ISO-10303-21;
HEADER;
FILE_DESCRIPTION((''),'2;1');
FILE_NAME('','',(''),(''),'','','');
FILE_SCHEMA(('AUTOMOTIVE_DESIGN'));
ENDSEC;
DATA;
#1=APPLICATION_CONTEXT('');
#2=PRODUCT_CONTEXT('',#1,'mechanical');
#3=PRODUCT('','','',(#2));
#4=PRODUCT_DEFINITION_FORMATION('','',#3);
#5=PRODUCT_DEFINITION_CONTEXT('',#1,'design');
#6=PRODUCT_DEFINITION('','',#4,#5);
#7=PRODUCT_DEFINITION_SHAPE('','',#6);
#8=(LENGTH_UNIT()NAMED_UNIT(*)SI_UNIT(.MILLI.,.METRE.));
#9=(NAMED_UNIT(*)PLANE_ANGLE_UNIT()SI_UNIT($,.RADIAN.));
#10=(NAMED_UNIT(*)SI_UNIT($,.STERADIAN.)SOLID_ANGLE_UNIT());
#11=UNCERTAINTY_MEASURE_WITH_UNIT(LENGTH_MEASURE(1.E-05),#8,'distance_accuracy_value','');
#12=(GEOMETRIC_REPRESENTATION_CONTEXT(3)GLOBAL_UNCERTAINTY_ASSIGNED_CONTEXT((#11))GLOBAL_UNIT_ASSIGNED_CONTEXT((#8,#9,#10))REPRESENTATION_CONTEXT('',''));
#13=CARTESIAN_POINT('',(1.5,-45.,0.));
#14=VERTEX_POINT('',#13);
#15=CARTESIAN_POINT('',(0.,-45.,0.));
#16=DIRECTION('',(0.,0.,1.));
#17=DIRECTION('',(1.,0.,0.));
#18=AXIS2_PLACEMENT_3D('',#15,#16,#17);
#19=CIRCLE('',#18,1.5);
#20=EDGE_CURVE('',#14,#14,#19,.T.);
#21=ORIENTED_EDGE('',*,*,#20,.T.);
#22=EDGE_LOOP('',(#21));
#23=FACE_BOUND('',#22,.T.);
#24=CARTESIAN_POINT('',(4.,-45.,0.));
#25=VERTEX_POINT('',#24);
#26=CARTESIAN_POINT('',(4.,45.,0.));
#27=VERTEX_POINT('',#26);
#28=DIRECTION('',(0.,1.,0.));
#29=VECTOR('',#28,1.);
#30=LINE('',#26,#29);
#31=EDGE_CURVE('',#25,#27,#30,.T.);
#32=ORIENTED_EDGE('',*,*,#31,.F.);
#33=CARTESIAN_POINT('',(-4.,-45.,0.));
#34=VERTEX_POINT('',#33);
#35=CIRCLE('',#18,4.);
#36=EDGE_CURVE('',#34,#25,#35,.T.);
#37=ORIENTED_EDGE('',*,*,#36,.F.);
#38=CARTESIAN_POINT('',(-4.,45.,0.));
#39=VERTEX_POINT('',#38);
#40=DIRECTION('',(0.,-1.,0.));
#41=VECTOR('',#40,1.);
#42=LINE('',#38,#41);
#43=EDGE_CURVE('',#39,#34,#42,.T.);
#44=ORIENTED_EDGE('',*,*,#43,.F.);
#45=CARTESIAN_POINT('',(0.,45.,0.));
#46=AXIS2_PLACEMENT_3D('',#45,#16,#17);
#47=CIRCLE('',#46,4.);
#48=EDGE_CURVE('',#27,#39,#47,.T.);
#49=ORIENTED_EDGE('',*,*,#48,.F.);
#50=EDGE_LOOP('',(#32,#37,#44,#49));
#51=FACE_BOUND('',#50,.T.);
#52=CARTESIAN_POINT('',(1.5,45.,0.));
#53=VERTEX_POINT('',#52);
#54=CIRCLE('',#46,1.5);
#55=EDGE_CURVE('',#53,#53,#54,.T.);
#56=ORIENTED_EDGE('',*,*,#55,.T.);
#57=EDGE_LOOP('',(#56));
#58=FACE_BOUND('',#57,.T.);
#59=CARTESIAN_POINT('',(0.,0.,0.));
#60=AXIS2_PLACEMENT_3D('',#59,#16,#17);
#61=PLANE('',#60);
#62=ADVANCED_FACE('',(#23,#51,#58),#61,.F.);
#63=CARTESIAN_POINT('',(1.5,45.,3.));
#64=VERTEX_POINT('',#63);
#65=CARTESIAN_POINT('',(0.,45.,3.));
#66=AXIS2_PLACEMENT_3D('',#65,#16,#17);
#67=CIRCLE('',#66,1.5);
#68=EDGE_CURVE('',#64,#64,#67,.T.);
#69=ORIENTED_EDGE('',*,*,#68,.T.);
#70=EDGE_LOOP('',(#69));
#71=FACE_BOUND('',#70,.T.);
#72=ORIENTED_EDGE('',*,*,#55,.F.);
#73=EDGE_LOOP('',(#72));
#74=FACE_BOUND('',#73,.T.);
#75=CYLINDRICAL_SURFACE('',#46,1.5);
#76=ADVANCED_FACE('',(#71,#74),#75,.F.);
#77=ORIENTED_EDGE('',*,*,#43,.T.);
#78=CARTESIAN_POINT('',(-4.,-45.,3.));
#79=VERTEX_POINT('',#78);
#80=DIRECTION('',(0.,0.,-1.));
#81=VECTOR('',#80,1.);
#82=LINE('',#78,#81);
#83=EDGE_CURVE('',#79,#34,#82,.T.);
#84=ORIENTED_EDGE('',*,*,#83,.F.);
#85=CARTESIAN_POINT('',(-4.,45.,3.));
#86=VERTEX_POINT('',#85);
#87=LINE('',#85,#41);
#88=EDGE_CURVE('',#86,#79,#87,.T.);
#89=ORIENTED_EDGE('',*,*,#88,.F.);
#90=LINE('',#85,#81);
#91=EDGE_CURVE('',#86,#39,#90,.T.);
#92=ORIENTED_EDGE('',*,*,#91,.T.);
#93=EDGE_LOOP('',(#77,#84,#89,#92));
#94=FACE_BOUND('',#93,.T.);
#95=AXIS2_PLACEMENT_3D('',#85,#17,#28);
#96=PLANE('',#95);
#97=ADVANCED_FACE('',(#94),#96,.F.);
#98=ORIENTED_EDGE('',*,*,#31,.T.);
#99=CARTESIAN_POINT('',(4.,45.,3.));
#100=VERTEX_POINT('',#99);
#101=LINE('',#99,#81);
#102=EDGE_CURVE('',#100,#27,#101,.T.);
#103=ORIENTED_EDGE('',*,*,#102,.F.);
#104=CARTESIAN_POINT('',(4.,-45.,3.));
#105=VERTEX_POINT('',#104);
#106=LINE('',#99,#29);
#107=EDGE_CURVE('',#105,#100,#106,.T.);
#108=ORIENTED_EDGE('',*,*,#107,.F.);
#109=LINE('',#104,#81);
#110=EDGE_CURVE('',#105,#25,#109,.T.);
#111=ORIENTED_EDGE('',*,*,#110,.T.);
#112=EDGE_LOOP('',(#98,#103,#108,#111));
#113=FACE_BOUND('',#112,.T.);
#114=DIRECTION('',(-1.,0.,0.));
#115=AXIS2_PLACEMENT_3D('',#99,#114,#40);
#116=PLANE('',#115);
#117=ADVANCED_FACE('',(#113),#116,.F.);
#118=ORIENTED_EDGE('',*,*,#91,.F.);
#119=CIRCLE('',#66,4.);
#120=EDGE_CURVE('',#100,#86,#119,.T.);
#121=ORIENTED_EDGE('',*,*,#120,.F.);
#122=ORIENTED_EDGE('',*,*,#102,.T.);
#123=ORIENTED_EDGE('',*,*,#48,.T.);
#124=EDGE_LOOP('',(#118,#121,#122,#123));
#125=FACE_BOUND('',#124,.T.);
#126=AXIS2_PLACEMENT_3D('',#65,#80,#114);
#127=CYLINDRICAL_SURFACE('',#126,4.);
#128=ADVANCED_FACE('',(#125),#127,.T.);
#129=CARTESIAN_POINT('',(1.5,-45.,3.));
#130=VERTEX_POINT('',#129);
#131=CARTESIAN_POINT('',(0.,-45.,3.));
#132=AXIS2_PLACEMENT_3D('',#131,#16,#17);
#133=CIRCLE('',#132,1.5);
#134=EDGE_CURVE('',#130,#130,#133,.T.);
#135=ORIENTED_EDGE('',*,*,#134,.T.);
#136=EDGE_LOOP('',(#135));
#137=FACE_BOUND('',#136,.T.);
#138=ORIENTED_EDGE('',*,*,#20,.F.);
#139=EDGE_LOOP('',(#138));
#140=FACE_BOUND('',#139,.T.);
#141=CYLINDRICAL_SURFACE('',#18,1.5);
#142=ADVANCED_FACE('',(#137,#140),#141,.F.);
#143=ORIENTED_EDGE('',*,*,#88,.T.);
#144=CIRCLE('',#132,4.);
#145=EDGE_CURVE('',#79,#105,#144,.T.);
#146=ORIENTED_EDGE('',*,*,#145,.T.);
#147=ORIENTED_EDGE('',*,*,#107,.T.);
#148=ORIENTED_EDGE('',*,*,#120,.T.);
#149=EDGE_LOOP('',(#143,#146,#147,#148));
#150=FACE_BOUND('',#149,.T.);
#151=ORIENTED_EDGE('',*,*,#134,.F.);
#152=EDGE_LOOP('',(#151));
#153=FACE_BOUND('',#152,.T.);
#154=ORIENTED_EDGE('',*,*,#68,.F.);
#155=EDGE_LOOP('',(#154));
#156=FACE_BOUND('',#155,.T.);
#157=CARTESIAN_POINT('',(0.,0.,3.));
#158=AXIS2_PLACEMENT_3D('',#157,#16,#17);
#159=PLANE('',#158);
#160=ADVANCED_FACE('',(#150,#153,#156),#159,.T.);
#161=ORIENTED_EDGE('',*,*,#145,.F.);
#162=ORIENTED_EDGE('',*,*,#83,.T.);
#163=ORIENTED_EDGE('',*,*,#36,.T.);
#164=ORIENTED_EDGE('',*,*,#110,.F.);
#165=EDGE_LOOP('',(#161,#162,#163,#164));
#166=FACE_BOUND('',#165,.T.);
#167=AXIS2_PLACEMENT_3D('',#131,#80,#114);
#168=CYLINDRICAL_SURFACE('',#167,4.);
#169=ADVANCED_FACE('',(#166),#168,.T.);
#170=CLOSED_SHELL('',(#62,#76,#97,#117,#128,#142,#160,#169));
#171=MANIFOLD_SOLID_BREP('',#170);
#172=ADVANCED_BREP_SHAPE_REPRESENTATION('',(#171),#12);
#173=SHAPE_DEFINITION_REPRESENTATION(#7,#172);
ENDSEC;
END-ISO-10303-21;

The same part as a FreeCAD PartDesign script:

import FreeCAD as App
import Part
import Sketcher
from FreeCAD import Vector

doc = App.newDocument("Part")
params = doc.addObject("Spreadsheet::Sheet", "Params")
for row, (alias, value) in enumerate([
    ("sketch1_width", "8 mm"),
    ("sketch1_height", "90 mm"),
    ("pad1_length", "3 mm"),
    ("sketch2_diameter", "8 mm"),
    ("pad2_length", "3 mm"),
    ("sketch3_diameter", "3 mm"),
    ("pocket1_length", "3 mm"),
], start=1):
    params.set(f"A{row}", alias)
    params.set(f"B{row}", "=" + value)
    params.setAlias(f"B{row}", alias)

body = doc.addObject("PartDesign::Body", "Body")

# Sketch on XY plane
sketch1 = body.newObject("Sketcher::SketchObject", "Sketch")
sketch1.AttachmentSupport = (doc.getObject("XY_Plane"), [""])
sketch1.MapMode = "FlatFace"
sketch1.addGeometry([
    Part.LineSegment(Vector(-4, 45, 0), Vector(-4, -45, 0)),
    Part.LineSegment(Vector(-4, -45, 0), Vector(4, -45, 0)),
    Part.LineSegment(Vector(4, -45, 0), Vector(4, 45, 0)),
    Part.LineSegment(Vector(4, 45, 0), Vector(-4, 45, 0)),
], False)
sketch1.addConstraint([
    Sketcher.Constraint("Coincident", 0, 2, 1, 1),
    Sketcher.Constraint("Coincident", 1, 2, 2, 1),
    Sketcher.Constraint("Coincident", 2, 2, 3, 1),
    Sketcher.Constraint("Coincident", 3, 2, 0, 1),
    Sketcher.Constraint("Vertical", 0),
    Sketcher.Constraint("Horizontal", 1),
    Sketcher.Constraint("Vertical", 2),
    Sketcher.Constraint("Horizontal", 3),
    Sketcher.Constraint("Symmetric", 0, 2, 2, 2, -1, 1),
    Sketcher.Constraint("DistanceX", 1, 1, 1, 2, 8.0),
    Sketcher.Constraint("DistanceY", 0, 2, 0, 1, 90.0),
])
sketch1.setExpression("Constraints[9]", "Params.sketch1_width")
sketch1.setExpression("Constraints[10]", "Params.sketch1_height")
pad1 = body.newObject("PartDesign::Pad", "Pad")
pad1.Profile = sketch1
pad1.setExpression("Length", "Params.pad1_length")

# Sketch on XY plane
sketch2 = body.newObject("Sketcher::SketchObject", "Sketch001")
sketch2.AttachmentSupport = (doc.getObject("XY_Plane"), [""])
sketch2.MapMode = "FlatFace"
sketch2.addGeometry([
    Part.Circle(Vector(0, 45, 0), Vector(0, 0, 1), 4),
    Part.Circle(Vector(0, -45, 0), Vector(0, 0, 1), 4),
], False)
sketch2.addConstraint([
    Sketcher.Constraint("Equal", 0, 1),
    Sketcher.Constraint("Symmetric", 0, 3, 1, 3, -1, 1),
    Sketcher.Constraint("PointOnObject", 0, 3, -2),
    Sketcher.Constraint("Diameter", 0, 8.0),
    Sketcher.Constraint("DistanceY", -1, 1, 0, 3, 45.0),
])
sketch2.setExpression("Constraints[3]", "Params.sketch2_diameter")
pad2 = body.newObject("PartDesign::Pad", "Pad001")
pad2.Profile = sketch2
pad2.setExpression("Length", "Params.pad2_length")

# Sketch on XY plane
sketch3 = body.newObject("Sketcher::SketchObject", "Sketch002")
sketch3.AttachmentSupport = (doc.getObject("XY_Plane"), [""])
sketch3.MapMode = "FlatFace"
sketch3.AttachmentOffset = App.Placement(Vector(0, 0, 3), App.Rotation())
sketch3.addGeometry([
    Part.Circle(Vector(0, 45, 0), Vector(0, 0, 1), 1.5),
    Part.Circle(Vector(0, -45, 0), Vector(0, 0, 1), 1.5),
], False)
sketch3.addConstraint([
    Sketcher.Constraint("Equal", 0, 1),
    Sketcher.Constraint("Symmetric", 0, 3, 1, 3, -1, 1),
    Sketcher.Constraint("PointOnObject", 0, 3, -2),
    Sketcher.Constraint("Diameter", 0, 3.0),
    Sketcher.Constraint("DistanceY", -1, 1, 0, 3, 45.0),
])
sketch3.setExpression("Constraints[3]", "Params.sketch3_diameter")
pocket1 = body.newObject("PartDesign::Pocket", "Pocket")
pocket1.Profile = sketch3
pocket1.setExpression("Length", "Params.pocket1_length")

doc.recompute()
